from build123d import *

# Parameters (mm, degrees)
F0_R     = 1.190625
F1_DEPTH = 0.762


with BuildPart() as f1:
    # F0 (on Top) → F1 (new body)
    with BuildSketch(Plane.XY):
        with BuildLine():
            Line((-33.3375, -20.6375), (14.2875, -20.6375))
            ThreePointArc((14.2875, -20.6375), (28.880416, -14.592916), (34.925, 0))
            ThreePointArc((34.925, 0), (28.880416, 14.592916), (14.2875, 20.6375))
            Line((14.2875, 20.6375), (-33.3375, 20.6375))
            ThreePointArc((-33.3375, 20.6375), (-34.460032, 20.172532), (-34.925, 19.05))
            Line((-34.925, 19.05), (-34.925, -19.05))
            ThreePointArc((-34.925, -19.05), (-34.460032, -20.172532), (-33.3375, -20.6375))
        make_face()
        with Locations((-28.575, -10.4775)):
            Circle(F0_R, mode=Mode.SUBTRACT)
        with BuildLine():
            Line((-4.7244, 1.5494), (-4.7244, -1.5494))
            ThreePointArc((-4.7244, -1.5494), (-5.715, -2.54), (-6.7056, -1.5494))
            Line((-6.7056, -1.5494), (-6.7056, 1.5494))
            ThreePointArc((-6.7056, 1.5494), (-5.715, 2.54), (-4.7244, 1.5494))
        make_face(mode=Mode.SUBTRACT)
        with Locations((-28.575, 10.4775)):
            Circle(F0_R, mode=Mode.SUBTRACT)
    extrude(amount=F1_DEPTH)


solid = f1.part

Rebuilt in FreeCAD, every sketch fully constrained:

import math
import FreeCAD as App
import Part
import Sketcher
from FreeCAD import Vector
Q = App.Units.Quantity

doc = App.newDocument("Part")
body = doc.addObject("PartDesign::Body", "Body")

# Sketch on XY plane
sketch1 = body.newObject("Sketcher::SketchObject", "Sketch")
sketch1.AttachmentSupport = (doc.getObject("XY_Plane"), [""])
sketch1.MapMode = "FlatFace"
sketch1.addGeometry([
    Part.LineSegment(Vector(-33.3375, -20.6375, 0), Vector(14.2875, -20.6375, 0)),  # 0
    Part.ArcOfCircle(Part.Circle(Vector(14.287499, 0.000001, 0), Vector(0, 0, 1), 20.637501), math.radians(-89.999998), math.radians(-0.000002)),  # 1
    Part.ArcOfCircle(Part.Circle(Vector(14.287499, -0.000001, 0), Vector(0, 0, 1), 20.637501), math.radians(0.000002), math.radians(89.999998)),  # 2
    Part.LineSegment(Vector(14.2875, 20.6375, 0), Vector(-33.3375, 20.6375, 0)),  # 3
    Part.ArcOfCircle(Part.Circle(Vector(-33.3375, 19.05, 0), Vector(0, 0, 1), 1.5875), math.radians(90.000002), math.radians(179.999998)),  # 4
    Part.LineSegment(Vector(-34.925, 19.05, 0), Vector(-34.925, -19.05, 0)),  # 5
    Part.ArcOfCircle(Part.Circle(Vector(-33.3375, -19.05, 0), Vector(0, 0, 1), 1.5875), math.radians(-179.999998), math.radians(-90.000002)),  # 6
    Part.Circle(Vector(-28.575, -10.4775, 0), Vector(0, 0, 1), 1.190625),  # 7
    Part.Circle(Vector(-28.575, 10.4775, 0), Vector(0, 0, 1), 1.190625),  # 8
    Part.ArcOfCircle(Part.Circle(Vector(-5.715, 1.5494, 0), Vector(0, 0, 1), 0.9906), math.radians(0), math.radians(180)),  # 9
    Part.LineSegment(Vector(-4.7244, 1.5494, 0), Vector(-4.7244, -1.5494, 0)),  # 10
    Part.ArcOfCircle(Part.Circle(Vector(-5.715, -1.5494, 0), Vector(0, 0, 1), 0.9906), math.radians(180), math.radians(360)),  # 11
    Part.LineSegment(Vector(-6.7056, -1.5494, 0), Vector(-6.7056, 1.5494, 0)),  # 12
], False)
sketch1.addConstraint([
    Sketcher.Constraint("Tangent", 0, 2, 1, 1),
    Sketcher.Constraint("Tangent", 1, 2, 2, 1),
    Sketcher.Constraint("Tangent", 2, 2, 3, 1),
    Sketcher.Constraint("Tangent", 3, 2, 4, 1),
    Sketcher.Constraint("Tangent", 4, 2, 5, 1),
    Sketcher.Constraint("Tangent", 5, 2, 6, 1),
    Sketcher.Constraint("Tangent", 6, 2, 0, 1),
    Sketcher.Constraint("Tangent", 9, 1, 10, 1),
    Sketcher.Constraint("Tangent", 10, 2, 11, 2),
    Sketcher.Constraint("Tangent", 11, 1, 12, 1),
    Sketcher.Constraint("Tangent", 12, 2, 9, 2),
    Sketcher.Constraint("Horizontal", 0),
    Sketcher.Constraint("Horizontal", 3),
    Sketcher.Constraint("Vertical", 5),
    Sketcher.Constraint("Vertical", 10),
    Sketcher.Constraint("Vertical", 12),
    Sketcher.Constraint("Equal", 1, 2),
    Sketcher.Constraint("Equal", 4, 6),
    Sketcher.Constraint("Equal", 7, 8),
    Sketcher.Constraint("Symmetric", 7, 3, 8, 3, -1),
    Sketcher.Constraint("PointOnObject", 1, 3, -1),
    Sketcher.Constraint("PointOnObject", 1, 2, -1),
    Sketcher.Constraint("Diameter", 7, Q("0.09375 in")),
    Sketcher.Constraint("DistanceY", 5, 2, 5, 1, Q("1.5 in")),
    Sketcher.Constraint("Radius", 1, Q("0.8125 in")),
    Sketcher.Constraint("Radius", 9, Q("0.039 in")),
    Sketcher.Constraint("DistanceX", 8, 3, 9, 3, Q("0.9 in")),
    Sketcher.Constraint("DistanceY", 0, 2, 7, 3, Q("0.4 in")),
    Sketcher.Constraint("DistanceX", 9, 3, 1, 2, Q("1.6 in")),
    Sketcher.Constraint("DistanceX", 0, 1, 0, 2, Q("1.875 in")),
    Sketcher.Constraint("DistanceY", 10, 2, 10, 1, Q("0.122 in")),
    Sketcher.Constraint("DistanceX", -1, 1, 1, 3, Q("0.5625 in")),
    Sketcher.Constraint("DistanceY", -1, 1, 9, 3, Q("0.061 in")),
])
pad1 = body.newObject("PartDesign::Pad", "Pad")
pad1.Profile = sketch1
pad1.Length = Q("0.03 in")

doc.recompute()
